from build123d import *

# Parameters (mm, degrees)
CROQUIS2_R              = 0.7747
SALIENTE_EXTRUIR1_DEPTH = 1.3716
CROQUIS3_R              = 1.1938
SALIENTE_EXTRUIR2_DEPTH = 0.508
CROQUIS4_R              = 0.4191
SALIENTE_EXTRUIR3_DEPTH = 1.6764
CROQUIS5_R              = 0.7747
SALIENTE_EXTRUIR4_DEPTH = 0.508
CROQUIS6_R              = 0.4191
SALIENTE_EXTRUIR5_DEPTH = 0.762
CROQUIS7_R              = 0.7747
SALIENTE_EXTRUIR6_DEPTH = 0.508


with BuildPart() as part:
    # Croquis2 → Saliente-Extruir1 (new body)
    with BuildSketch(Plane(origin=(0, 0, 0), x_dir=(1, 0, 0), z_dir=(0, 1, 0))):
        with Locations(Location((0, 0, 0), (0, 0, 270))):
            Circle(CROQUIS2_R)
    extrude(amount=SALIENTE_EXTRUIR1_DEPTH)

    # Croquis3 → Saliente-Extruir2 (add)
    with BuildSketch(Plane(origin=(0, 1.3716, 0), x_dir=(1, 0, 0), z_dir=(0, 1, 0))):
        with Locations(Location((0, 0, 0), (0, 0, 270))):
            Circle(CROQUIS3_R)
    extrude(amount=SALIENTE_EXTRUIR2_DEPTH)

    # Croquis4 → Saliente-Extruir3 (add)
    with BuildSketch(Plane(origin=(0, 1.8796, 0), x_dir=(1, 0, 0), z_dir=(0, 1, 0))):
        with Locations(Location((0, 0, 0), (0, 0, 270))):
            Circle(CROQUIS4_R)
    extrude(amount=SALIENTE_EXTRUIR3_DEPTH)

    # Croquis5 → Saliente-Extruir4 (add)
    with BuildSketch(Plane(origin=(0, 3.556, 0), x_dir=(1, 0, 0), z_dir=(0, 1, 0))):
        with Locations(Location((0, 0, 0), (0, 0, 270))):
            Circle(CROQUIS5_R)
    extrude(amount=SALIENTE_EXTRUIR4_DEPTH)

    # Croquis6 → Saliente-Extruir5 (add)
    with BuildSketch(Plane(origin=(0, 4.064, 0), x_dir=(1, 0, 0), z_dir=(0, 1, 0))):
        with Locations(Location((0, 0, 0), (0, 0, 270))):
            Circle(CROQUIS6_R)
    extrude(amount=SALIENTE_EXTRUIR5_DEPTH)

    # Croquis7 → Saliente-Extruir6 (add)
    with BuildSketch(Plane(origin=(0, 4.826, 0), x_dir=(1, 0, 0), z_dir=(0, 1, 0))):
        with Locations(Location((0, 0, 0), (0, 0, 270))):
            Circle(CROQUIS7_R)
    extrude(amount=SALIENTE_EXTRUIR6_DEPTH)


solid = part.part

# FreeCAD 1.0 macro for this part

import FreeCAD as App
import Part
import Sketcher
Q = App.Units.Quantity

doc = App.newDocument("Part")
params = doc.addObject("Spreadsheet::Sheet", "Params")
for row, (alias, value) in enumerate([
    ("sketch1_diameter", "0.061 in"),
    ("pad1_length", "0.054 in"),
    ("sketch2_diameter", "0.094 in"),
    ("pad2_length", "0.02 in"),
    ("sketch3_diameter", "0.033 in"),
    ("pad3_length", "0.066 in"),
    ("sketch4_diameter", "0.061 in"),
    ("pad4_length", "0.02 in"),
    ("sketch5_diameter", "0.033 in"),
    ("pad5_length", "0.03 in"),
    ("sketch6_diameter", "0.061 in"),
    ("pad6_length", "0.02 in"),
], start=1):
    params.set(f"A{row}", alias)
    params.set(f"B{row}", "=" + value)
    params.setAlias(f"B{row}", alias)

body = doc.addObject("PartDesign::Body", "Body")

# Sketch on XZ plane
sketch1 = body.newObject("Sketcher::SketchObject", "Sketch")
sketch1.AttachmentSupport = (doc.getObject("XZ_Plane"), [""])
sketch1.MapMode = "FlatFace"
sketch1.addGeometry(Part.Circle(App.Vector(0, 0, 0), App.Vector(0, 0, 1), 0.8), False)
sketch1.addConstraint([
    Sketcher.Constraint("Coincident", 0, 3, -1, 1),
    Sketcher.Constraint("Diameter", 0, Q("0.061 in")),
])
sketch1.setExpression("Constraints[1]", "Params.sketch1_diameter")
pad1 = body.newObject("PartDesign::Pad", "Pad")
pad1.Profile = sketch1
pad1.setExpression("Length", "Params.pad1_length")
pad1.Reversed = True

# Sketch on XZ plane
sketch2 = body.newObject("Sketcher::SketchObject", "Sketch001")
sketch2.AttachmentSupport = (doc.getObject("XZ_Plane"), [""])
sketch2.MapMode = "FlatFace"
sketch2.AttachmentOffset = App.Placement(App.Vector(0, 0, -0.054 * 25.4), App.Rotation())
sketch2.addGeometry(Part.Circle(App.Vector(0, 0, 0), App.Vector(0, 0, 1), 1.2), False)
sketch2.addConstraint([
    Sketcher.Constraint("Coincident", 0, 3, -1, 1),
    Sketcher.Constraint("Diameter", 0, Q("0.094 in")),
])
sketch2.setExpression("Constraints[1]", "Params.sketch2_diameter")
pad2 = body.newObject("PartDesign::Pad", "Pad001")
pad2.Profile = sketch2
pad2.setExpression("Length", "Params.pad2_length")
pad2.Reversed = True

# Sketch on XZ plane
sketch3 = body.newObject("Sketcher::SketchObject", "Sketch002")
sketch3.AttachmentSupport = (doc.getObject("XZ_Plane"), [""])
sketch3.MapMode = "FlatFace"
sketch3.AttachmentOffset = App.Placement(App.Vector(0, 0, -0.074 * 25.4), App.Rotation())
sketch3.addGeometry(Part.Circle(App.Vector(0, 0, 0), App.Vector(0, 0, 1), 0.42), False)
sketch3.addConstraint([
    Sketcher.Constraint("Coincident", 0, 3, -1, 1),
    Sketcher.Constraint("Diameter", 0, Q("0.033 in")),
])
sketch3.setExpression("Constraints[1]", "Params.sketch3_diameter")
pad3 = body.newObject("PartDesign::Pad", "Pad002")
pad3.Profile = sketch3
pad3.setExpression("Length", "Params.pad3_length")
pad3.Reversed = True

# Sketch on XZ plane
sketch4 = body.newObject("Sketcher::SketchObject", "Sketch003")
sketch4.AttachmentSupport = (doc.getObject("XZ_Plane"), [""])
sketch4.MapMode = "FlatFace"
sketch4.AttachmentOffset = App.Placement(App.Vector(0, 0, -0.14 * 25.4), App.Rotation())
sketch4.addGeometry(Part.Circle(App.Vector(0, 0, 0), App.Vector(0, 0, 1), 0.8), False)
sketch4.addConstraint([
    Sketcher.Constraint("Coincident", 0, 3, -1, 1),
    Sketcher.Constraint("Diameter", 0, Q("0.061 in")),
])
sketch4.setExpression("Constraints[1]", "Params.sketch4_diameter")
pad4 = body.newObject("PartDesign::Pad", "Pad003")
pad4.Profile = sketch4
pad4.setExpression("Length", "Params.pad4_length")
pad4.Reversed = True

# Sketch on XZ plane
sketch5 = body.newObject("Sketcher::SketchObject", "Sketch004")
sketch5.AttachmentSupport = (doc.getObject("XZ_Plane"), [""])
sketch5.MapMode = "FlatFace"
sketch5.AttachmentOffset = App.Placement(App.Vector(0, 0, -0.16 * 25.4), App.Rotation())
sketch5.addGeometry(Part.Circle(App.Vector(0, 0, 0), App.Vector(0, 0, 1), 0.42), False)
sketch5.addConstraint([
    Sketcher.Constraint("Coincident", 0, 3, -1, 1),
    Sketcher.Constraint("Diameter", 0, Q("0.033 in")),
])
sketch5.setExpression("Constraints[1]", "Params.sketch5_diameter")
pad5 = body.newObject("PartDesign::Pad", "Pad004")
pad5.Profile = sketch5
pad5.setExpression("Length", "Params.pad5_length")
pad5.Reversed = True

# Sketch on XZ plane
sketch6 = body.newObject("Sketcher::SketchObject", "Sketch005")
sketch6.AttachmentSupport = (doc.getObject("XZ_Plane"), [""])
sketch6.MapMode = "FlatFace"
sketch6.AttachmentOffset = App.Placement(App.Vector(0, 0, -0.19 * 25.4), App.Rotation())
sketch6.addGeometry(Part.Circle(App.Vector(0, 0, 0), App.Vector(0, 0, 1), 0.8), False)
sketch6.addConstraint([
    Sketcher.Constraint("Coincident", 0, 3, -1, 1),
    Sketcher.Constraint("Diameter", 0, Q("0.061 in")),
])
sketch6.setExpression("Constraints[1]", "Params.sketch6_diameter")
pad6 = body.newObject("PartDesign::Pad", "Pad005")
pad6.Profile = sketch6
pad6.setExpression("Length", "Params.pad6_length")
pad6.Reversed = True

doc.recompute()
